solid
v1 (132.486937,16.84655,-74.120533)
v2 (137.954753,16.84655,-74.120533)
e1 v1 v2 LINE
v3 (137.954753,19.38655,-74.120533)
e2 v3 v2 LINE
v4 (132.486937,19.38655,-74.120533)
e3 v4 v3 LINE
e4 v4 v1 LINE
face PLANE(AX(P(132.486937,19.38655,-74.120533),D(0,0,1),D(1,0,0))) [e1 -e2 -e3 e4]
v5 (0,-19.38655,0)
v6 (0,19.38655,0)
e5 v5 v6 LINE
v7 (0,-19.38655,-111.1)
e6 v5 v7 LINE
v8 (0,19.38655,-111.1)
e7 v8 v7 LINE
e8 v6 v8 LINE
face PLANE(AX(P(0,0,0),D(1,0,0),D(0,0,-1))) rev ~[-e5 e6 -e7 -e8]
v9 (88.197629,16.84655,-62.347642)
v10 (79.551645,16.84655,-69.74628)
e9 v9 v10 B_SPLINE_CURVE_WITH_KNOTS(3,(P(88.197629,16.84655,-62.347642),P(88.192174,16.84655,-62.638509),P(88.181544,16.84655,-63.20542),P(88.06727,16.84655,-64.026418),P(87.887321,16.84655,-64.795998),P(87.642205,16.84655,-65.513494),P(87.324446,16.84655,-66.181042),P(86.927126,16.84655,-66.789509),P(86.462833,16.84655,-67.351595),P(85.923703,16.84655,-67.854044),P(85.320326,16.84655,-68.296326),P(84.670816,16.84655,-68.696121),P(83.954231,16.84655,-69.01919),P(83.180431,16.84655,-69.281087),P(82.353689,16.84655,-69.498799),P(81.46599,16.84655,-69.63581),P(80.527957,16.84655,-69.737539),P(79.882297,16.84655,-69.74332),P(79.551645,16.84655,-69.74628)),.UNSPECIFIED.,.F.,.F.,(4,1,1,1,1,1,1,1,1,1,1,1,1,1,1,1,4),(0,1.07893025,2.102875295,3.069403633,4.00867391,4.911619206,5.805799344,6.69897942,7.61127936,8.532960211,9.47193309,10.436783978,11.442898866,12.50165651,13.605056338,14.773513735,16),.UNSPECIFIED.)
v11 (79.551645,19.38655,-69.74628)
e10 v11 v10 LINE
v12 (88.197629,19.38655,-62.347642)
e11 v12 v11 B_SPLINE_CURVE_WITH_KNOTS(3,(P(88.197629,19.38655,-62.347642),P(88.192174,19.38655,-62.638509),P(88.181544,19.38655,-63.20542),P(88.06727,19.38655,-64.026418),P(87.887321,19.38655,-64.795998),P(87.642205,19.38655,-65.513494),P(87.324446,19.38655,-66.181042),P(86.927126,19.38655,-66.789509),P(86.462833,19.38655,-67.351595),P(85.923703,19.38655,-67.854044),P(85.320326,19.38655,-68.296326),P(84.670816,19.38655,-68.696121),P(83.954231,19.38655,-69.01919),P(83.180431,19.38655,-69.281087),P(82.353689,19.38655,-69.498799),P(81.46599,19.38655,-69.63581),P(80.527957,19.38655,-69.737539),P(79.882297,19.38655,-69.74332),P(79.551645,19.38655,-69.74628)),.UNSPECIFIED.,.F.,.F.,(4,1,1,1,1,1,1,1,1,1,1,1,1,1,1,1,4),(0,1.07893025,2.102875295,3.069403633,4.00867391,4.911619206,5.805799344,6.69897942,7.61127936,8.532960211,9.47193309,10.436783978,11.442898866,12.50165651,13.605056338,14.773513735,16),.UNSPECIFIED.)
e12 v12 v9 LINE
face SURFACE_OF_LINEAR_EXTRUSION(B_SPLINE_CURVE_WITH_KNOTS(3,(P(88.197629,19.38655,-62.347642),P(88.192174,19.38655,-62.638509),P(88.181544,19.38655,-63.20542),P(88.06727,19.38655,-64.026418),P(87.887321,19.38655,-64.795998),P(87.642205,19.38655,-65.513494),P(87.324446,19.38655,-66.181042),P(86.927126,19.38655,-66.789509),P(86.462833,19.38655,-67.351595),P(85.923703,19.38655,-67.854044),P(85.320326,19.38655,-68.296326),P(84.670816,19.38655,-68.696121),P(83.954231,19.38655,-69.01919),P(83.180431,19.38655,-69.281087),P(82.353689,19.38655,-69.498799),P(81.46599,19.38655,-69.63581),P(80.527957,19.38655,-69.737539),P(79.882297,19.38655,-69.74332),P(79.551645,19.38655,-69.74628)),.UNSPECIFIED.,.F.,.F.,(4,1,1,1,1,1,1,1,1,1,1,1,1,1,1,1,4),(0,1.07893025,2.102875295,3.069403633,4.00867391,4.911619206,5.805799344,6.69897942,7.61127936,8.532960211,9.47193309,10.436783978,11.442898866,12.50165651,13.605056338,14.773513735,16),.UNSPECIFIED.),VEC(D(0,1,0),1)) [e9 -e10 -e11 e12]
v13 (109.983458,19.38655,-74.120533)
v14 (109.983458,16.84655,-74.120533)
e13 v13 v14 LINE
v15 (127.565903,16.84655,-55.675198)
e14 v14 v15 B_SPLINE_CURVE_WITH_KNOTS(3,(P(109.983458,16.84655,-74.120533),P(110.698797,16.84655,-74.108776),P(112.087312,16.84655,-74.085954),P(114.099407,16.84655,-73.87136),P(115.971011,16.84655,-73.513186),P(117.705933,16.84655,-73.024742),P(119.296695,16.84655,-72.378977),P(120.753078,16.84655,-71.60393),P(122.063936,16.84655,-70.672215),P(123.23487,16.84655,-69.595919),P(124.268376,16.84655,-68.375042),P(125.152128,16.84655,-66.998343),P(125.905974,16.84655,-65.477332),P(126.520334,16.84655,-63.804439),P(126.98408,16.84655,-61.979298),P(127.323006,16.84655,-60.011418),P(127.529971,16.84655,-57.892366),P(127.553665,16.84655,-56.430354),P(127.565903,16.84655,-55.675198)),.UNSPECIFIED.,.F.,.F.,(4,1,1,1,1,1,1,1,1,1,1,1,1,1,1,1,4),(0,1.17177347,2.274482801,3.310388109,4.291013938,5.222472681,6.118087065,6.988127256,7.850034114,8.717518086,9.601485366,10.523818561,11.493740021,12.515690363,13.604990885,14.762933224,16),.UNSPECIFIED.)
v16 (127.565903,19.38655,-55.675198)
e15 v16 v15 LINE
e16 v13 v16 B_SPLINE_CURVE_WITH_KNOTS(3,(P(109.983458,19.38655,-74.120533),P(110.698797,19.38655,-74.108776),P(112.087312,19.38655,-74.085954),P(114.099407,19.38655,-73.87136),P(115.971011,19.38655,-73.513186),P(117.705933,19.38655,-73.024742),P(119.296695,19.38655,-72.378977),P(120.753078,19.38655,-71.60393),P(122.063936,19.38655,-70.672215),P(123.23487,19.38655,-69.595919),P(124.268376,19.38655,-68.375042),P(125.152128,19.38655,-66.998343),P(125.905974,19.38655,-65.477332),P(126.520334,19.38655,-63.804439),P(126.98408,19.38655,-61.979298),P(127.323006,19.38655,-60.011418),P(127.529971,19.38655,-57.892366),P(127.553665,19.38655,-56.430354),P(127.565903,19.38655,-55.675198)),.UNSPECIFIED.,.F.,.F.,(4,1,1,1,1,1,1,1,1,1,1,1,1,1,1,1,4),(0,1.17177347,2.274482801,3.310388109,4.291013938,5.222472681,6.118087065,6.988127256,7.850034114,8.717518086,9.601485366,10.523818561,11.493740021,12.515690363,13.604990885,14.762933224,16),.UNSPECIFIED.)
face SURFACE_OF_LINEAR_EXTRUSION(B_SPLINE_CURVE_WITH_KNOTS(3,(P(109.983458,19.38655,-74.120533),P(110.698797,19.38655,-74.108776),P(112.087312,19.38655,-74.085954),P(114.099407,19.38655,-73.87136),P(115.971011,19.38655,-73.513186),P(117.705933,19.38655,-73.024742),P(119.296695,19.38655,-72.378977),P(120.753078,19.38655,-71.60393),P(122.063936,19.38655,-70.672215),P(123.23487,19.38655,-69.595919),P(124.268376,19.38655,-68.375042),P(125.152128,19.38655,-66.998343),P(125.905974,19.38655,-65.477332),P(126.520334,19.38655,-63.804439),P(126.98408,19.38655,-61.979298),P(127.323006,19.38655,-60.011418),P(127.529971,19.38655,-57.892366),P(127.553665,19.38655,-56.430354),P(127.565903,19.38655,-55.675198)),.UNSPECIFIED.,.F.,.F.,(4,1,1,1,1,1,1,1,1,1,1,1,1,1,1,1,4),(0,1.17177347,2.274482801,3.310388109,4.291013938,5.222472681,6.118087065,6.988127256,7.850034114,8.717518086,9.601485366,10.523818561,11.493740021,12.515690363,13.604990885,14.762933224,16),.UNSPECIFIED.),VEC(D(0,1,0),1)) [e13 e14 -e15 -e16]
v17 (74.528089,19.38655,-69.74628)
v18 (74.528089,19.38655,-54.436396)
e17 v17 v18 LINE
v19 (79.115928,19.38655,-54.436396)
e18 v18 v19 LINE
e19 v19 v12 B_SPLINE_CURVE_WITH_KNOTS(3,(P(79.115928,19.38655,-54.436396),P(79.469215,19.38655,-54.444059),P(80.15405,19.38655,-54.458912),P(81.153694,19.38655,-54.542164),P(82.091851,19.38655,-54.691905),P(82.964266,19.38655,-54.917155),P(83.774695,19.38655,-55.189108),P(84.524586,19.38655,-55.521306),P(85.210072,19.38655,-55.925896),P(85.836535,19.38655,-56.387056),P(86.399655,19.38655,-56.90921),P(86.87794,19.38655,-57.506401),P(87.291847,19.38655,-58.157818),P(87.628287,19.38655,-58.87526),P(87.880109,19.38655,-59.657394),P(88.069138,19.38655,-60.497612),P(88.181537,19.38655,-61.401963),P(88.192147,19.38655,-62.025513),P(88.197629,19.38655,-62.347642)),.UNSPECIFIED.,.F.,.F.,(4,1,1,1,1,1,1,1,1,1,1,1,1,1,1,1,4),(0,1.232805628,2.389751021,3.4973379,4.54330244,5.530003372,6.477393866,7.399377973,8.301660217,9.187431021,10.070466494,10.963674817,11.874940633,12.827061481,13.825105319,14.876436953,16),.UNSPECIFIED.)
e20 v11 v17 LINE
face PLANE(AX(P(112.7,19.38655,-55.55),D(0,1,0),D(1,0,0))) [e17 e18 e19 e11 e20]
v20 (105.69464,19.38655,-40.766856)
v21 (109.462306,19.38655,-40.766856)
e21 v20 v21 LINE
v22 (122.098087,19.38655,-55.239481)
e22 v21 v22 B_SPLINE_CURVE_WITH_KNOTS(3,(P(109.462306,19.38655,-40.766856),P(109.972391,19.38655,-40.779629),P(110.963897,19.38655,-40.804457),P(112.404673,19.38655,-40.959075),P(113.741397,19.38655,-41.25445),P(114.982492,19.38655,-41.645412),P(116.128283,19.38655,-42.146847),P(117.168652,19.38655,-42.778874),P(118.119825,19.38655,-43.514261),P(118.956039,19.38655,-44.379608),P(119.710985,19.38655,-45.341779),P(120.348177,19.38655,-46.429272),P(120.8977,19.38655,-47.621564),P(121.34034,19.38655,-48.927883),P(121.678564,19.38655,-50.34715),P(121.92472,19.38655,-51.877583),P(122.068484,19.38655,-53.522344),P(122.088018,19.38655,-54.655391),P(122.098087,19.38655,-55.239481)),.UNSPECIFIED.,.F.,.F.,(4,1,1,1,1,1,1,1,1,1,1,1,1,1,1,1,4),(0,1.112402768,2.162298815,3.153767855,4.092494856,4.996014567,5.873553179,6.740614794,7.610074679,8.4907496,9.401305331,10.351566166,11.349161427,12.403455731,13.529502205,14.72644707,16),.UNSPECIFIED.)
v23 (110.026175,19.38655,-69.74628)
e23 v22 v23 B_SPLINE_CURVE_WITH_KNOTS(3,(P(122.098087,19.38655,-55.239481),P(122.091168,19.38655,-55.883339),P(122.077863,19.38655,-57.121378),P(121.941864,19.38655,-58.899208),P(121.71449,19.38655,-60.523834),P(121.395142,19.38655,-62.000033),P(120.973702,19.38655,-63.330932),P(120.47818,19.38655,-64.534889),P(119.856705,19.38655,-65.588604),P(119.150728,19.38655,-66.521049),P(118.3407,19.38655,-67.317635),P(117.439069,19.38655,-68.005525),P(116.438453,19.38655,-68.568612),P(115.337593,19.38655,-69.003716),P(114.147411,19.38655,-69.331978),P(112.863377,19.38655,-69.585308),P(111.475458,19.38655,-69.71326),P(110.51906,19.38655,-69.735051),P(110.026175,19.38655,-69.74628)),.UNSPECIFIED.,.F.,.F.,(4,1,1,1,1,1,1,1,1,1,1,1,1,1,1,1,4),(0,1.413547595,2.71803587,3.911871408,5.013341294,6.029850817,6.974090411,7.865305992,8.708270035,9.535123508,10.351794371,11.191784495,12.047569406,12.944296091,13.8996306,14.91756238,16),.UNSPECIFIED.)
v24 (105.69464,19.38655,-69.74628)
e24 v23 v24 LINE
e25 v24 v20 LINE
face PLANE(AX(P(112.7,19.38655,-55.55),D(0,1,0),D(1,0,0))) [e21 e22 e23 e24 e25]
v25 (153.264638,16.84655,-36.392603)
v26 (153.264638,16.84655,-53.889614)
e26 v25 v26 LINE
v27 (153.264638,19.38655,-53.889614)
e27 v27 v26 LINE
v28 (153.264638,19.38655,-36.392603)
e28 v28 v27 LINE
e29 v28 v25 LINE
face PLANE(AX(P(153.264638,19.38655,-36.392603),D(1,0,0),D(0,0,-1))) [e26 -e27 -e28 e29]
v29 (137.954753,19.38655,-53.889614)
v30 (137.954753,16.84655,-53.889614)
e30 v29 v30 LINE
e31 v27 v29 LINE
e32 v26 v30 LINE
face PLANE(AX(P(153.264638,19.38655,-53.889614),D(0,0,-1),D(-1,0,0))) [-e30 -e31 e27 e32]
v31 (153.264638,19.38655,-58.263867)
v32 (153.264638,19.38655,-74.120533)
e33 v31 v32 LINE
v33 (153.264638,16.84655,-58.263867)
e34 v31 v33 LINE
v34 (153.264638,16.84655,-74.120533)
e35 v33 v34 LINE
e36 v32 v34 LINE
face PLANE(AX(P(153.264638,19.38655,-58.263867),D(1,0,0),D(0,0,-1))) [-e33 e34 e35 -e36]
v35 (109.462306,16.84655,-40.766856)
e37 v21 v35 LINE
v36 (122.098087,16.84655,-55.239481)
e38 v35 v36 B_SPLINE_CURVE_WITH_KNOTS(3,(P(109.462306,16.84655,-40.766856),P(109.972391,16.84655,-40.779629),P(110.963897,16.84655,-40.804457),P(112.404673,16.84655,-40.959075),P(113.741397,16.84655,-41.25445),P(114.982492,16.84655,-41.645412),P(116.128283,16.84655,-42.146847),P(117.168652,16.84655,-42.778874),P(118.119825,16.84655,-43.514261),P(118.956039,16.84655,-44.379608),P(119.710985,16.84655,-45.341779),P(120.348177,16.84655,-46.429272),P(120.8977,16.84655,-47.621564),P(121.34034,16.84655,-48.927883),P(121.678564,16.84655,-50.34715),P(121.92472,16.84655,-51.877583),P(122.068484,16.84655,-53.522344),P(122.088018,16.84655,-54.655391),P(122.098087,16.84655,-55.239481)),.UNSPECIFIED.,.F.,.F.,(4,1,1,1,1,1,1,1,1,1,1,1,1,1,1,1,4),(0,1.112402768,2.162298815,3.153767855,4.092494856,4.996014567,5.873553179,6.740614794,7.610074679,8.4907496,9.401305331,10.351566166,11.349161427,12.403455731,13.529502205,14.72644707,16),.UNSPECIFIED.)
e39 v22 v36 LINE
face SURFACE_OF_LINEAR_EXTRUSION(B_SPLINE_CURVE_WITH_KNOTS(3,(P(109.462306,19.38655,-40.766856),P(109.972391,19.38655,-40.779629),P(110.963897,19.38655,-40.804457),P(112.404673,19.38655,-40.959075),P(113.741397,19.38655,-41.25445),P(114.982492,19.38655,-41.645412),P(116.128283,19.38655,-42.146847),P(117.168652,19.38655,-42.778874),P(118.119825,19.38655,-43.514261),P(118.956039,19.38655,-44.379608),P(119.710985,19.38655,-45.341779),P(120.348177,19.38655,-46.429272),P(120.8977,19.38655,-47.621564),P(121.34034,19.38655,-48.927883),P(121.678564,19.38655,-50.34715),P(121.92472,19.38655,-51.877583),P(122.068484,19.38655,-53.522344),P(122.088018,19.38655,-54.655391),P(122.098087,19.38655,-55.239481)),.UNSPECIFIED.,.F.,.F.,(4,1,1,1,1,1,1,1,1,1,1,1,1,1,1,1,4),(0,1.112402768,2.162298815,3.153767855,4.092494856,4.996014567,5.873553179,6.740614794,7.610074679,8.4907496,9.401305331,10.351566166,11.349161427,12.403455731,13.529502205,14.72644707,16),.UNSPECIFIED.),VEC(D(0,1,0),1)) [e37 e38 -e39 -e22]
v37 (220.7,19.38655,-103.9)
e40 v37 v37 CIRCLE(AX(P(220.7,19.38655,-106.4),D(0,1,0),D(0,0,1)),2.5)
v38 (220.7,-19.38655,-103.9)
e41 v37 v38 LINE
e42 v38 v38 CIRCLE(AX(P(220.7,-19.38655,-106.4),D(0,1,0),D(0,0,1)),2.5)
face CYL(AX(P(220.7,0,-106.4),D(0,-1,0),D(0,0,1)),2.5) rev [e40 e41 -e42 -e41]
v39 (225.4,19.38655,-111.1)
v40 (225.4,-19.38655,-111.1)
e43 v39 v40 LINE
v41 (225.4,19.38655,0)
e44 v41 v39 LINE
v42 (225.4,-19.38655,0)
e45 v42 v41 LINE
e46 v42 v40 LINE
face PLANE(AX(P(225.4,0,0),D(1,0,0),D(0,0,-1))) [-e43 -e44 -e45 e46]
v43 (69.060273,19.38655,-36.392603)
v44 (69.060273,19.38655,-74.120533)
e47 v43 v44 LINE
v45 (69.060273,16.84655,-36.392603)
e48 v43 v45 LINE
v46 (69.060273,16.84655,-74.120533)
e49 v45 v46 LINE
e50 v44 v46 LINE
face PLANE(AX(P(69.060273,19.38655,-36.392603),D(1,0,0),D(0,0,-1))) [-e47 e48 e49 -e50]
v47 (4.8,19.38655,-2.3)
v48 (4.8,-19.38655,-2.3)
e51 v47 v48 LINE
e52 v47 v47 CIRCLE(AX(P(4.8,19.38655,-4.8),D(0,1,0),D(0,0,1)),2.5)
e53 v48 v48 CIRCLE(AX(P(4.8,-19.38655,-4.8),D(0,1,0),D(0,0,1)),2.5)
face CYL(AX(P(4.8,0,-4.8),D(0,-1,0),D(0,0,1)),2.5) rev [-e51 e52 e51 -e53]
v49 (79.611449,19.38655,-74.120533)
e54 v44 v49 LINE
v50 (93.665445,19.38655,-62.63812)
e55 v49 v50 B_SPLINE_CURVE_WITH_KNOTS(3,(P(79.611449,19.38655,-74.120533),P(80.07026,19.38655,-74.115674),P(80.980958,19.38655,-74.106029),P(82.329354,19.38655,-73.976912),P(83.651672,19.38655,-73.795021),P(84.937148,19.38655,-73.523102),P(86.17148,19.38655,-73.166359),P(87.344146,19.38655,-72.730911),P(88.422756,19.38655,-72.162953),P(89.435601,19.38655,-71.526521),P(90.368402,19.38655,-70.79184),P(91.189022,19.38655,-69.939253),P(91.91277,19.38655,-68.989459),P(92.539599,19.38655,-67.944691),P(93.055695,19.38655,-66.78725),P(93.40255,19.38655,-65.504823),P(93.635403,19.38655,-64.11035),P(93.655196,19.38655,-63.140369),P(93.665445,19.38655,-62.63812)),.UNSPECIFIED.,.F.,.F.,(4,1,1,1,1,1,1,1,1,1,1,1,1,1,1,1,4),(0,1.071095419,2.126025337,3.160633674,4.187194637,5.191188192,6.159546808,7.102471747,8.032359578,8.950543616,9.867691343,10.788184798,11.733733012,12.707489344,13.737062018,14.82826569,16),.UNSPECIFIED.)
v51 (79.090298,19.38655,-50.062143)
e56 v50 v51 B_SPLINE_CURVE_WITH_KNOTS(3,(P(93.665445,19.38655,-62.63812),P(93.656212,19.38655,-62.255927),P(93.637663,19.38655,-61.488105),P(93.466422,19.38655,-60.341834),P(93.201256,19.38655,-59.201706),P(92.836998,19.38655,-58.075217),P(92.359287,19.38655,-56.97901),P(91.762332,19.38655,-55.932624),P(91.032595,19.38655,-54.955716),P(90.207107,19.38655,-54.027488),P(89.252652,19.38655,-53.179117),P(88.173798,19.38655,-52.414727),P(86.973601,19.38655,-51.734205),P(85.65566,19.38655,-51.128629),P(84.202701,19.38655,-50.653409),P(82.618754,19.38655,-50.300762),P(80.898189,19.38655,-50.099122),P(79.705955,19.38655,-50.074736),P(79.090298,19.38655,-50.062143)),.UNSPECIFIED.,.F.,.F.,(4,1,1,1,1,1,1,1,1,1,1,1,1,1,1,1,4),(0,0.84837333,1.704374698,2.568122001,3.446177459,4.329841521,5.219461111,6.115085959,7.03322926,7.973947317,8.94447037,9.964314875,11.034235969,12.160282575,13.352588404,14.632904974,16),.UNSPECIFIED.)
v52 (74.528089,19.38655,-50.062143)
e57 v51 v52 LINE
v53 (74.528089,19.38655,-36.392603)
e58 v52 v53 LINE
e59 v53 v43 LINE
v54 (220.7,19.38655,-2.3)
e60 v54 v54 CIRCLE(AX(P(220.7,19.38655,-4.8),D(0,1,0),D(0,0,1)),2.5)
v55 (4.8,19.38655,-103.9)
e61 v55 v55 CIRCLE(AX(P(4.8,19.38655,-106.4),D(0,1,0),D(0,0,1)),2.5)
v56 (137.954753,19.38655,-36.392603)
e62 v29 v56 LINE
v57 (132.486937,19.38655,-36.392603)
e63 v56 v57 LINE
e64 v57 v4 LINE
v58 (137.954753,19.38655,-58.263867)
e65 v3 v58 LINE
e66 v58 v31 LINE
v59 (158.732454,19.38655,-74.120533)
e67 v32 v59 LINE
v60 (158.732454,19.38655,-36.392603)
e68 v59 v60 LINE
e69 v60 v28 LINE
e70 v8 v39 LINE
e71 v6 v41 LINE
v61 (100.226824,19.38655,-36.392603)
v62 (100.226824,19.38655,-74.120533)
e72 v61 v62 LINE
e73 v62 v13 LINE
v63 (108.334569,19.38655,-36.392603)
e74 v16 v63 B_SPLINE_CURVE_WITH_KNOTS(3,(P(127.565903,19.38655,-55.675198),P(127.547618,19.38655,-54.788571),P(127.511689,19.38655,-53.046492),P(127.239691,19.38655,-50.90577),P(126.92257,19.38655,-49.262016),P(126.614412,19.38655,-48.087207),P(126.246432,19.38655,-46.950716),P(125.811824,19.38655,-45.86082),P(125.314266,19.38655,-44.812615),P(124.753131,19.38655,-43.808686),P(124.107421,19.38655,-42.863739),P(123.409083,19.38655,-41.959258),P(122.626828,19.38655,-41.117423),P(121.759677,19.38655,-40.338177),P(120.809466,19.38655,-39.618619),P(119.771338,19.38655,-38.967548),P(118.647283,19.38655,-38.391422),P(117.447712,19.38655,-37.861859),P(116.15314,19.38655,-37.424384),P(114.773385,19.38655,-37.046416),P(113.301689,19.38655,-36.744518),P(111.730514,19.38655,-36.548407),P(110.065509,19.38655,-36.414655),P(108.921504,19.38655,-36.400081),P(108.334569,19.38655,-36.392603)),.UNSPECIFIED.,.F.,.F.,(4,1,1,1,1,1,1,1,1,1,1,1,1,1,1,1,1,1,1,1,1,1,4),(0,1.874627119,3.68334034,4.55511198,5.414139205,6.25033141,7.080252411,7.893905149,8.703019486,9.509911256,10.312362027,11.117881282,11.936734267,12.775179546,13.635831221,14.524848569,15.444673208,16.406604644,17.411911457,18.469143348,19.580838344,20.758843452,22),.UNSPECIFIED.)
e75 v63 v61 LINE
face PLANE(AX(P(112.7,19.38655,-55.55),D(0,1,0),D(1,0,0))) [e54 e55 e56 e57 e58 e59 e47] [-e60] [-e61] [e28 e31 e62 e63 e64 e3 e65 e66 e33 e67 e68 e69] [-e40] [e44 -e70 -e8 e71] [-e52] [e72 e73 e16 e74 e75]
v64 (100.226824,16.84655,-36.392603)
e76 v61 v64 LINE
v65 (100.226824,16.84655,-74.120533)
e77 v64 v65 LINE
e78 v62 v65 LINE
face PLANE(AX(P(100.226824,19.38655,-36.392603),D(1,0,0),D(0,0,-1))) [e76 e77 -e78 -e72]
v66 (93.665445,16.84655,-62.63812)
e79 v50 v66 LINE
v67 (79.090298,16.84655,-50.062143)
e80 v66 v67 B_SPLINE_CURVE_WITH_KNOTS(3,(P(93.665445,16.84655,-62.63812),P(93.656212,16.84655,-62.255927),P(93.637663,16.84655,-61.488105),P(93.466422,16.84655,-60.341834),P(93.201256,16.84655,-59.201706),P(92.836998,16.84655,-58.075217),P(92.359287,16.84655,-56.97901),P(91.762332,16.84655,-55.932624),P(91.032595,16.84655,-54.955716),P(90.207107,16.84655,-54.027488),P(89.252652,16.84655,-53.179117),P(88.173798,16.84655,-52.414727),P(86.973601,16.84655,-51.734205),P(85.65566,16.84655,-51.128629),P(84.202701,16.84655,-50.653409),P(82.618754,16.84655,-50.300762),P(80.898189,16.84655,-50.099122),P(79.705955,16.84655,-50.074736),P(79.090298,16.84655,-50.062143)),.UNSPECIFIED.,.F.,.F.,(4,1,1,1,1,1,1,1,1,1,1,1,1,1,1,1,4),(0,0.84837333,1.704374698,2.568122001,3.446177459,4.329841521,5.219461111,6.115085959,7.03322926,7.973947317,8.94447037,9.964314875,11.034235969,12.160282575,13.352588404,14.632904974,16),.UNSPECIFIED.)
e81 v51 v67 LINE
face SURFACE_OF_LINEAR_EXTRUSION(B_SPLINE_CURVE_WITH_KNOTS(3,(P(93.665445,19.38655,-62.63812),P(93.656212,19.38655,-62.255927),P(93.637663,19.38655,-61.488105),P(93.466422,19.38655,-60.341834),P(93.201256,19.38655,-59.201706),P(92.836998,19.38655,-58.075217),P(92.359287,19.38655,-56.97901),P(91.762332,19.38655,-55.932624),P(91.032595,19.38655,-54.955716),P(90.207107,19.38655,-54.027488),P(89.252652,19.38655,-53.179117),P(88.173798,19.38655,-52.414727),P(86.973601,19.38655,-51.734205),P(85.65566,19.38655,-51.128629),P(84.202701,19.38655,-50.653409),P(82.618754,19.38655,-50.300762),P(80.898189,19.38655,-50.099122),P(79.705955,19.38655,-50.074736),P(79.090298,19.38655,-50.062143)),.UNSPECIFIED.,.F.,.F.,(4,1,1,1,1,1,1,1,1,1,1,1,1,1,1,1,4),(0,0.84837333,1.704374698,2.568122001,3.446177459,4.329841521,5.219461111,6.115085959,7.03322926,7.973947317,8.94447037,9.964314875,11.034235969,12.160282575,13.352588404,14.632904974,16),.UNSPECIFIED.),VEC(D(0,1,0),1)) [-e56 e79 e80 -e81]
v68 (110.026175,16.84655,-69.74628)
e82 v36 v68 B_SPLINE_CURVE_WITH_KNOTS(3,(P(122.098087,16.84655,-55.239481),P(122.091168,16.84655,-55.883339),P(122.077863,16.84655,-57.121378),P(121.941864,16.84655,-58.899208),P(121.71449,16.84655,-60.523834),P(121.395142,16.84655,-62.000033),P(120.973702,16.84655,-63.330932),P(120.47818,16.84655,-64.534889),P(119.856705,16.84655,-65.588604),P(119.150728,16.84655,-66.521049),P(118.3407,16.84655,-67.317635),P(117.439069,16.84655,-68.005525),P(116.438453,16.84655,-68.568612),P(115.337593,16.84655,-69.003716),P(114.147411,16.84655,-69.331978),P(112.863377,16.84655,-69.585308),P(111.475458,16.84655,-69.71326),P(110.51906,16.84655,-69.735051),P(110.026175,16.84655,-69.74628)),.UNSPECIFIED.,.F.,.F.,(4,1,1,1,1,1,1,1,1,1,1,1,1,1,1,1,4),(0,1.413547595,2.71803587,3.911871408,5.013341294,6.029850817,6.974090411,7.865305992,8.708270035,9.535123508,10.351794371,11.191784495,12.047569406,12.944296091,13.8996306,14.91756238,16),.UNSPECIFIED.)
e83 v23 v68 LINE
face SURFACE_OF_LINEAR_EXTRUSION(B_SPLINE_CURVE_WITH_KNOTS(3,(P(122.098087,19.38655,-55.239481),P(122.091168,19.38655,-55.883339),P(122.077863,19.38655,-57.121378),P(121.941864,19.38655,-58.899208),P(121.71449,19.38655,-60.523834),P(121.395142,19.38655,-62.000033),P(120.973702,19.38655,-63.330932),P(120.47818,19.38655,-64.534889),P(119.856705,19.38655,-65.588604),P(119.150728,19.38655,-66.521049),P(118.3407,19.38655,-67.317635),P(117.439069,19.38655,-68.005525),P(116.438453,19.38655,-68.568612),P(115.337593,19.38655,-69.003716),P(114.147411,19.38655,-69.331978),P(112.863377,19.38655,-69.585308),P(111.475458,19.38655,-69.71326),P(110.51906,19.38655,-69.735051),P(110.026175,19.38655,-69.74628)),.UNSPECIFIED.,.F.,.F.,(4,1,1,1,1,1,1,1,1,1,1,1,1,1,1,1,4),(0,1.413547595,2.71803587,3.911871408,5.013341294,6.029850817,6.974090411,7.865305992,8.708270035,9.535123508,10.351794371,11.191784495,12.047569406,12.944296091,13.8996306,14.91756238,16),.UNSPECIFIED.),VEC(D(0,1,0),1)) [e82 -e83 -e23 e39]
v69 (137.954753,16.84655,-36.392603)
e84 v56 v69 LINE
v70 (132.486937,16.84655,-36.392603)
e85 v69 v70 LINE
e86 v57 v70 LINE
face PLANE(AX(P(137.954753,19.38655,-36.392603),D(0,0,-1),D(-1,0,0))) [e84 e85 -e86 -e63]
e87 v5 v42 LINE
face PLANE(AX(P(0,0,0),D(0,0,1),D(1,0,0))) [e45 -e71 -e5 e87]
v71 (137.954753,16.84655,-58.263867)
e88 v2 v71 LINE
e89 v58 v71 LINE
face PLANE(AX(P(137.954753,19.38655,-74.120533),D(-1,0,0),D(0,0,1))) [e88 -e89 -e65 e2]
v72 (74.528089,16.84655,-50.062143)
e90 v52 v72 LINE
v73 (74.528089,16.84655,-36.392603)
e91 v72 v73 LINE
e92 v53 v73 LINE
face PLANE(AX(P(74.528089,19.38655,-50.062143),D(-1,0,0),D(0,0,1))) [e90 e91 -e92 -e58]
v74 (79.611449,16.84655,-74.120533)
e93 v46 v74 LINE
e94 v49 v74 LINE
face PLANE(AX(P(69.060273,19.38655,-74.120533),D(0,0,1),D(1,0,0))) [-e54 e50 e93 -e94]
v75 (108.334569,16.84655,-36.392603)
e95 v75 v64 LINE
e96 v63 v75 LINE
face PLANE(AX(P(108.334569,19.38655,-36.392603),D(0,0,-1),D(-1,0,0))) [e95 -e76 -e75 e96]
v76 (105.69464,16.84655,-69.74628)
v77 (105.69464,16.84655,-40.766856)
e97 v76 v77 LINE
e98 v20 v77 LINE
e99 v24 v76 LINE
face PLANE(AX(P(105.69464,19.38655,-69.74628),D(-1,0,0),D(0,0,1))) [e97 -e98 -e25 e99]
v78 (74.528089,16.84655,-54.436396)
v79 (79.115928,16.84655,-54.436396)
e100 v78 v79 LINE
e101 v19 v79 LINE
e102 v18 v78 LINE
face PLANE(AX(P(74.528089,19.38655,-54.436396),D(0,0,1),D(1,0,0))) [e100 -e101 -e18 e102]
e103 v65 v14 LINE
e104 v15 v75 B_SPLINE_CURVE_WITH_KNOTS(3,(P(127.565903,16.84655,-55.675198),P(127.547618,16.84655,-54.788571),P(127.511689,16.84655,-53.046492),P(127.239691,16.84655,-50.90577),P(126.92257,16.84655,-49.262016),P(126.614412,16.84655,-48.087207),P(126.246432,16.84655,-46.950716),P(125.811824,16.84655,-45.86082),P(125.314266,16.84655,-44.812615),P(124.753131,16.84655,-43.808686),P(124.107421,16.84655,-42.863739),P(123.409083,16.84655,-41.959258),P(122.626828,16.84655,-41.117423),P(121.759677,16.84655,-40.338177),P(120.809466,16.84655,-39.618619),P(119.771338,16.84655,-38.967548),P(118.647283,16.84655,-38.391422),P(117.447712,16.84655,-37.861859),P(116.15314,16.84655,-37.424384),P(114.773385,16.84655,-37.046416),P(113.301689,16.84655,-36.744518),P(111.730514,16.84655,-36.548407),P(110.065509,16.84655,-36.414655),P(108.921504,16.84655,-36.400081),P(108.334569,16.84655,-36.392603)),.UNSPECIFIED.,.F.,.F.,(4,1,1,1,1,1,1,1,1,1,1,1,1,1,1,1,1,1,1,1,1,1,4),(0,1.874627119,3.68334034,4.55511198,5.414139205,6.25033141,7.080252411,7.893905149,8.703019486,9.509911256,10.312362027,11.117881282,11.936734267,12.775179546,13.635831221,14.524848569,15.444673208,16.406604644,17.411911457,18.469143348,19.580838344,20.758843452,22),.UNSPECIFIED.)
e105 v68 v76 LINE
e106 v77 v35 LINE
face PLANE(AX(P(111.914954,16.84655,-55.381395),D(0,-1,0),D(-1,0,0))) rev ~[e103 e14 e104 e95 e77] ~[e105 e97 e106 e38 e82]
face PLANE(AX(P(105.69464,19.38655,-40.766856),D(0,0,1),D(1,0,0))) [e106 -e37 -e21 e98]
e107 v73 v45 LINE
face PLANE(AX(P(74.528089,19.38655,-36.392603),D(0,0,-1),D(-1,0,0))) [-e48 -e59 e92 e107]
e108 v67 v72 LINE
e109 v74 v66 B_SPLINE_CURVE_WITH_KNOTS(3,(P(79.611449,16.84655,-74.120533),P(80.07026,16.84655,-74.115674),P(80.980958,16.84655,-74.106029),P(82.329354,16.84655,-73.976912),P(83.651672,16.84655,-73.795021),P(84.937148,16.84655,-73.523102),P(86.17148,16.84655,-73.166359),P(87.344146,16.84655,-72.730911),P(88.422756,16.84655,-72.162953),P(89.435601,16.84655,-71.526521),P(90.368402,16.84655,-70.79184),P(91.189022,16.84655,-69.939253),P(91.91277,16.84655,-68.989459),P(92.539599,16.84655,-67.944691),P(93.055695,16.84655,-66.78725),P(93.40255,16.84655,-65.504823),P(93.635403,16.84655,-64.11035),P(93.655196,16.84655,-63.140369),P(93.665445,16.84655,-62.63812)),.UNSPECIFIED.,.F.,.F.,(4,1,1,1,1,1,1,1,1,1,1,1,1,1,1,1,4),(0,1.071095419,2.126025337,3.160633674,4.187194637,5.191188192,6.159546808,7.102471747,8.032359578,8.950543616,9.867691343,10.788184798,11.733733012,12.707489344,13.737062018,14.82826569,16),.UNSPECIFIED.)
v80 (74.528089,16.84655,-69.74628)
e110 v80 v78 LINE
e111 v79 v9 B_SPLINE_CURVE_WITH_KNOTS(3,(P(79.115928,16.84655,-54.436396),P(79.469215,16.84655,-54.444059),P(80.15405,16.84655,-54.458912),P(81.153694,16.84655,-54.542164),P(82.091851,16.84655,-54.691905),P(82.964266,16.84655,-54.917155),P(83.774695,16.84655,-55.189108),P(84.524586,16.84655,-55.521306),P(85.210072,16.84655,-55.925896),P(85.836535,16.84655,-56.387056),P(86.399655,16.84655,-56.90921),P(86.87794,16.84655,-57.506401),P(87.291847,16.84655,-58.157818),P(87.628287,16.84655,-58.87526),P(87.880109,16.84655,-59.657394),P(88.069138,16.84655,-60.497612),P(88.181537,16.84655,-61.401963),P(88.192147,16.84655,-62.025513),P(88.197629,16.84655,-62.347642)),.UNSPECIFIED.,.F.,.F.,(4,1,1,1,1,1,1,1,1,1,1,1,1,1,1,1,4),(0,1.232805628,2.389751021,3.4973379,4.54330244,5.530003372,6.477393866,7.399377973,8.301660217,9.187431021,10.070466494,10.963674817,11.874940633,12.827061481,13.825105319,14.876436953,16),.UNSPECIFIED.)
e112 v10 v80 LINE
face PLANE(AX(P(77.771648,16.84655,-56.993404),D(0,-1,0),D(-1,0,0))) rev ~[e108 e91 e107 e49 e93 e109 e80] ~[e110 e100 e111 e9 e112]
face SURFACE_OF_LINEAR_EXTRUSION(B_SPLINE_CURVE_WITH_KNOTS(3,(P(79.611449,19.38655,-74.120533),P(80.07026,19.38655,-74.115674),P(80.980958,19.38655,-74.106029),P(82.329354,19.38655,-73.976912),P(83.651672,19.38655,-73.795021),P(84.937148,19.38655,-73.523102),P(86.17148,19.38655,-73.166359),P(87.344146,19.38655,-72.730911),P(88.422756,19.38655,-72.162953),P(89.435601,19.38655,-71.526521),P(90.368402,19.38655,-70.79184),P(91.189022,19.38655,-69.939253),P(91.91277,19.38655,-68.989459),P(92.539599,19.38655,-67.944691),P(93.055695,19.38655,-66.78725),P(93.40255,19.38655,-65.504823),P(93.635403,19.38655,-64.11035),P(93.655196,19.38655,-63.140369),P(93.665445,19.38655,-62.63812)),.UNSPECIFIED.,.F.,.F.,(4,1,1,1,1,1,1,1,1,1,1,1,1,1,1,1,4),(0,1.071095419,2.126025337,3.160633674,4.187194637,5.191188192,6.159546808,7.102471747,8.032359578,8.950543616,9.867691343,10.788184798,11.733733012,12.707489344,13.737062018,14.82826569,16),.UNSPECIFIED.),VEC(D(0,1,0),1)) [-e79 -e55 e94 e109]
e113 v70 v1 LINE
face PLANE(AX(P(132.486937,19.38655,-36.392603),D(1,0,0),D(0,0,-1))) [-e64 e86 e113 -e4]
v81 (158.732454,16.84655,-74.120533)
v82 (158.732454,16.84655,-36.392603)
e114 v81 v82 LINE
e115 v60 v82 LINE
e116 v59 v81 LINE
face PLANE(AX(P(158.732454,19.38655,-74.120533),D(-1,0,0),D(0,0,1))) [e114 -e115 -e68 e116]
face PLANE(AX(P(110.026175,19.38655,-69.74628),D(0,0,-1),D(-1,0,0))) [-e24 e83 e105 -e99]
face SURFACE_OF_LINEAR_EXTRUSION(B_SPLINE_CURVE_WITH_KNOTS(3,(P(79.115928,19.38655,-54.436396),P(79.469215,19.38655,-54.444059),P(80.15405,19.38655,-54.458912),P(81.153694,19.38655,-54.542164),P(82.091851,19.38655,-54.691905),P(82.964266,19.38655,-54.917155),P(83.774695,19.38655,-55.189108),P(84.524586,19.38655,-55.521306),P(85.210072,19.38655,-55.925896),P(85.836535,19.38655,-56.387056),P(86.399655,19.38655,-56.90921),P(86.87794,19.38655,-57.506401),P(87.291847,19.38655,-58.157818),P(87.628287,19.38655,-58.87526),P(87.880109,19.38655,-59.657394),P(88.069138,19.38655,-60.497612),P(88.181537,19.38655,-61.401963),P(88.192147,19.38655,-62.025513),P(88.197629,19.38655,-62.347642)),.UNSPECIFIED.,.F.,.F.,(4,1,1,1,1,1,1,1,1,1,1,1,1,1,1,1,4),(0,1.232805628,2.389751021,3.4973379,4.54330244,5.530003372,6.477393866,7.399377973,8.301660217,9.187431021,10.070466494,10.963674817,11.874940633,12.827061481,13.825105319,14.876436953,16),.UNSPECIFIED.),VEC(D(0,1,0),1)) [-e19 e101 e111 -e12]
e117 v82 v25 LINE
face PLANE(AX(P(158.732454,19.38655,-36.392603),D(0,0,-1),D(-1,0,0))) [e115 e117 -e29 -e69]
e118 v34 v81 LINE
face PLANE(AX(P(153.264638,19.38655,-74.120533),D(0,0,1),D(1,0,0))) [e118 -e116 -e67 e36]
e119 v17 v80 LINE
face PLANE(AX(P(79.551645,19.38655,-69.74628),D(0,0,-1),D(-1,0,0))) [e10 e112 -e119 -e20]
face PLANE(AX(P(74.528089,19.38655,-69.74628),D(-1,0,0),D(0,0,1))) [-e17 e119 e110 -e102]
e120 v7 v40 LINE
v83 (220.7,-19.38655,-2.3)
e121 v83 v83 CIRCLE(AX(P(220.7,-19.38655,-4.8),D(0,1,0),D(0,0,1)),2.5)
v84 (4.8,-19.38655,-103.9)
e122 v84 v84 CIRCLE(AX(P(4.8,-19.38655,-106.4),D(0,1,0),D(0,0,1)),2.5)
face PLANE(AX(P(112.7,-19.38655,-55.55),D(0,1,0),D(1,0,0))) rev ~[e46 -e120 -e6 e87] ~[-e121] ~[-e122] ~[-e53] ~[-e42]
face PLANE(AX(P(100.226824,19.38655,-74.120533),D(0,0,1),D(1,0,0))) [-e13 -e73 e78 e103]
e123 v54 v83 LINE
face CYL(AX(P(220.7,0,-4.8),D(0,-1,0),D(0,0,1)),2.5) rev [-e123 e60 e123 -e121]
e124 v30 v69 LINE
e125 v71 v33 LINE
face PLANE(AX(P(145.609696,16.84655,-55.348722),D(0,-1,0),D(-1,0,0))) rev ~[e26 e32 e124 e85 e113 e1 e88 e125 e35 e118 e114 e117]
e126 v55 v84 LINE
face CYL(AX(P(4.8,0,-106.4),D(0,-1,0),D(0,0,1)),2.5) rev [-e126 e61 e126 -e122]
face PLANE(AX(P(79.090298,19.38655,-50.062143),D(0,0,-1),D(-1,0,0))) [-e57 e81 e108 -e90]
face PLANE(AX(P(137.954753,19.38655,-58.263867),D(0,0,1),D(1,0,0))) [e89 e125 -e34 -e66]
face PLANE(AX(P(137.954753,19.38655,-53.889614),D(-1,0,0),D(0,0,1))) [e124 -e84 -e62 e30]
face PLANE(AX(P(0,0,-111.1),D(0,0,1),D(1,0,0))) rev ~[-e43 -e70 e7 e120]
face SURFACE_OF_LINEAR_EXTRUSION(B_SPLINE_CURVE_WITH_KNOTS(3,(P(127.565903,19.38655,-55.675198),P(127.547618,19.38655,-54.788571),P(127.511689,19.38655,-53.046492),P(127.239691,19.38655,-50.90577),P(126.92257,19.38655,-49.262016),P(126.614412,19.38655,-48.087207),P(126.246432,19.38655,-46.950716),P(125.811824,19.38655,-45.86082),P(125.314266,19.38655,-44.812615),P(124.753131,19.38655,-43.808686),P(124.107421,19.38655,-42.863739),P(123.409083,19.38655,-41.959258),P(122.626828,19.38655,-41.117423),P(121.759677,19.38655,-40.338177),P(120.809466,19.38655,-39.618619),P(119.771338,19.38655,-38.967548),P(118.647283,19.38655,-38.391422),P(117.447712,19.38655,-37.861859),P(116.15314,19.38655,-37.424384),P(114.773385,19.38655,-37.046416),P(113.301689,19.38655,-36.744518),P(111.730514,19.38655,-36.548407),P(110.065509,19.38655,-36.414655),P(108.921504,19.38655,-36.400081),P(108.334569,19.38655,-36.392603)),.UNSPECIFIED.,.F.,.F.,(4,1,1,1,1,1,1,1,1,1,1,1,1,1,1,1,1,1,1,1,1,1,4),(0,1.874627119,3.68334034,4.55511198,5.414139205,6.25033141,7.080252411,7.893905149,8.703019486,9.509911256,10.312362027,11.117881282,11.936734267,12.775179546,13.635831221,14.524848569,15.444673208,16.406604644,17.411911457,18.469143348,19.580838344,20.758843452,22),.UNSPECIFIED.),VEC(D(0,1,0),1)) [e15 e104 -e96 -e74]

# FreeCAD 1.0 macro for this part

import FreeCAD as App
import Part
import Sketcher

V = App.Vector

doc = App.newDocument("Part")
body = doc.addObject("PartDesign::Body", "Body")

sketch1 = body.newObject("Sketcher::SketchObject", "Sketch")
sketch1.AttachmentSupport = (doc.getObject("XZ_Plane"), [""])
sketch1.MapMode = "FlatFace"
sketch1.addGeometry(Part.LineSegment(V(0, -111.1, 0), V(0, 0, 0)), False)
sketch1.addGeometry(Part.LineSegment(V(0, 0, 0), V(225.4, 0, 0)), False)
sketch1.addGeometry(Part.LineSegment(V(225.4, 0, 0), V(225.4, -111.1, 0)), False)
sketch1.addGeometry(Part.LineSegment(V(225.4, -111.1, 0), V(0, -111.1, 0)), False)
sketch1.addGeometry(Part.Circle(V(4.8, -4.8, 0), V(0, 0, 1), 2.5), False)
sketch1.addGeometry(Part.Circle(V(220.7, -4.8, 0), V(0, 0, 1), 2.5), False)
sketch1.addGeometry(Part.Circle(V(4.8, -106.4, 0), V(0, 0, 1), 2.5), False)
sketch1.addGeometry(Part.Circle(V(220.7, -106.4, 0), V(0, 0, 1), 2.5), False)
sketch1.addConstraint(Sketcher.Constraint("Coincident", 0, 2, 1, 1))
sketch1.addConstraint(Sketcher.Constraint("Coincident", 1, 2, 2, 1))
sketch1.addConstraint(Sketcher.Constraint("Coincident", 2, 2, 3, 1))
sketch1.addConstraint(Sketcher.Constraint("Coincident", 3, 2, 0, 1))
sketch1.addConstraint(Sketcher.Constraint("Vertical", 0))
sketch1.addConstraint(Sketcher.Constraint("Horizontal", 1))
sketch1.addConstraint(Sketcher.Constraint("Vertical", 2))
sketch1.addConstraint(Sketcher.Constraint("Horizontal", 3))
sketch1.addConstraint(Sketcher.Constraint("Coincident", 0, 2, -1, 1))
sketch1.addConstraint(Sketcher.Constraint("Equal", 4, 5))
sketch1.addConstraint(Sketcher.Constraint("Equal", 5, 6))
sketch1.addConstraint(Sketcher.Constraint("Equal", 6, 7))
sketch1.addConstraint(Sketcher.Constraint("Horizontal", 4, 3, 5, 3))
sketch1.addConstraint(Sketcher.Constraint("Horizontal", 6, 3, 7, 3))
sketch1.addConstraint(Sketcher.Constraint("Vertical", 4, 3, 6, 3))
sketch1.addConstraint(Sketcher.Constraint("Vertical", 5, 3, 7, 3))
sketch1.addConstraint(Sketcher.Constraint("Diameter", 4, 5.0))
sketch1.addConstraint(Sketcher.Constraint("DistanceX", 1, 1, 1, 2, 225.4))
sketch1.addConstraint(Sketcher.Constraint("DistanceY", 0, 1, 0, 2, 111.1))
sketch1.addConstraint(Sketcher.Constraint("DistanceX", -1, 1, 4, 3, 4.8))
sketch1.addConstraint(Sketcher.Constraint("DistanceY", 4, 3, -1, 1, 4.8))
sketch1.addConstraint(Sketcher.Constraint("DistanceX", -1, 1, 5, 3, 220.7))
sketch1.addConstraint(Sketcher.Constraint("DistanceY", 6, 3, -1, 1, 106.4))
pad1 = body.newObject("PartDesign::Pad", "Pad")
pad1.Profile = sketch1
pad1.Length = 38.7731
pad1.Midplane = True

sketch2 = body.newObject("Sketcher::SketchObject", "Sketch001")
sketch2.AttachmentSupport = (doc.getObject("XZ_Plane"), [""])
sketch2.MapMode = "FlatFace"
sketch2.AttachmentOffset = App.Placement(V(0, 0, -19.38655), App.Rotation())
sketch2.addGeometry(Part.BSplineCurve([V(93.665445, -62.63812, 0), V(93.656212, -62.255927, 0), V(93.637663, -61.488105, 0), V(93.466422, -60.341834, 0), V(93.201256, -59.201706, 0), V(92.836998, -58.075217, 0), V(92.359287, -56.97901, 0), V(91.762332, -55.932624, 0), V(91.032595, -54.955716, 0), V(90.207107, -54.027488, 0), V(89.252652, -53.179117, 0), V(88.173798, -52.414727, 0), V(86.973601, -51.734205, 0), V(85.65566, -51.128629, 0), V(84.202701, -50.653409, 0), V(82.618754, -50.300762, 0), V(80.898189, -50.099122, 0), V(79.705955, -50.074736, 0), V(79.090298, -50.062143, 0)], [4, 1, 1, 1, 1, 1, 1, 1, 1, 1, 1, 1, 1, 1, 1, 1, 4], [0, 0.84837333, 1.704374698, 2.568122001, 3.446177459, 4.329841521, 5.219461111, 6.115085959, 7.03322926, 7.973947317, 8.94447037, 9.964314875, 11.034235969, 12.160282575, 13.352588404, 14.632904974, 16], False, 3, [1, 1, 1, 1, 1, 1, 1, 1, 1, 1, 1, 1, 1, 1, 1, 1, 1, 1, 1], False), False)
sketch2.addGeometry(Part.BSplineCurve([V(79.611449, -74.120533, 0), V(80.07026, -74.115674, 0), V(80.980958, -74.106029, 0), V(82.329354, -73.976912, 0), V(83.651672, -73.795021, 0), V(84.937148, -73.523102, 0), V(86.17148, -73.166359, 0), V(87.344146, -72.730911, 0), V(88.422756, -72.162953, 0), V(89.435601, -71.526521, 0), V(90.368402, -70.79184, 0), V(91.189022, -69.939253, 0), V(91.91277, -68.989459, 0), V(92.539599, -67.944691, 0), V(93.055695, -66.78725, 0), V(93.40255, -65.504823, 0), V(93.635403, -64.11035, 0), V(93.655196, -63.140369, 0), V(93.665445, -62.63812, 0)], [4, 1, 1, 1, 1, 1, 1, 1, 1, 1, 1, 1, 1, 1, 1, 1, 4], [0, 1.071095419, 2.126025337, 3.160633674, 4.187194637, 5.191188192, 6.159546808, 7.102471747, 8.032359578, 8.950543616, 9.867691343, 10.788184798, 11.733733012, 12.707489344, 13.737062018, 14.82826569, 16], False, 3, [1, 1, 1, 1, 1, 1, 1, 1, 1, 1, 1, 1, 1, 1, 1, 1, 1, 1, 1], False), False)
sketch2.addGeometry(Part.LineSegment(V(79.611449, -74.120533, 0), V(69.060273, -74.120533, 0)), False)
sketch2.addGeometry(Part.LineSegment(V(69.060273, -74.120533, 0), V(69.060273, -36.392603, 0)), False)
sketch2.addGeometry(Part.LineSegment(V(69.060273, -36.392603, 0), V(74.528089, -36.392603, 0)), False)
sketch2.addGeometry(Part.LineSegment(V(74.528089, -36.392603, 0), V(74.528089, -50.062143, 0)), False)
sketch2.addGeometry(Part.LineSegment(V(74.528089, -50.062143, 0), V(79.090298, -50.062143, 0)), False)
sketch2.addGeometry(Part.BSplineCurve([V(79.115928, -54.436396, 0), V(79.469215, -54.444059, 0), V(80.15405, -54.458912, 0), V(81.153694, -54.542164, 0), V(82.091851, -54.691905, 0), V(82.964266, -54.917155, 0), V(83.774695, -55.189108, 0), V(84.524586, -55.521306, 0), V(85.210072, -55.925896, 0), V(85.836535, -56.387056, 0), V(86.399655, -56.90921, 0), V(86.87794, -57.506401, 0), V(87.291847, -58.157818, 0), V(87.628287, -58.87526, 0), V(87.880109, -59.657394, 0), V(88.069138, -60.497612, 0), V(88.181537, -61.401963, 0), V(88.192147, -62.025513, 0), V(88.197629, -62.347642, 0)], [4, 1, 1, 1, 1, 1, 1, 1, 1, 1, 1, 1, 1, 1, 1, 1, 4], [0, 1.232805628, 2.389751021, 3.4973379, 4.54330244, 5.530003372, 6.477393866, 7.399377973, 8.301660217, 9.187431021, 10.070466494, 10.963674817, 11.874940633, 12.827061481, 13.825105319, 14.876436953, 16], False, 3, [1, 1, 1, 1, 1, 1, 1, 1, 1, 1, 1, 1, 1, 1, 1, 1, 1, 1, 1], False), False)
sketch2.addGeometry(Part.LineSegment(V(79.115928, -54.436396, 0), V(74.528089, -54.436396, 0)), False)
sketch2.addGeometry(Part.LineSegment(V(74.528089, -54.436396, 0), V(74.528089, -69.74628, 0)), False)
sketch2.addGeometry(Part.LineSegment(V(74.528089, -69.74628, 0), V(79.551645, -69.74628, 0)), False)
sketch2.addGeometry(Part.BSplineCurve([V(88.197629, -62.347642, 0), V(88.192174, -62.638509, 0), V(88.181544, -63.20542, 0), V(88.06727, -64.026418, 0), V(87.887321, -64.795998, 0), V(87.642205, -65.513494, 0), V(87.324446, -66.181042, 0), V(86.927126, -66.789509, 0), V(86.462833, -67.351595, 0), V(85.923703, -67.854044, 0), V(85.320326, -68.296326, 0), V(84.670816, -68.696121, 0), V(83.954231, -69.01919, 0), V(83.180431, -69.281087, 0), V(82.353689, -69.498799, 0), V(81.46599, -69.63581, 0), V(80.527957, -69.737539, 0), V(79.882297, -69.74332, 0), V(79.551645, -69.74628, 0)], [4, 1, 1, 1, 1, 1, 1, 1, 1, 1, 1, 1, 1, 1, 1, 1, 4], [0, 1.07893025, 2.102875295, 3.069403633, 4.00867391, 4.911619206, 5.805799344, 6.69897942, 7.61127936, 8.532960211, 9.47193309, 10.436783978, 11.442898866, 12.50165651, 13.605056338, 14.773513735, 16], False, 3, [1, 1, 1, 1, 1, 1, 1, 1, 1, 1, 1, 1, 1, 1, 1, 1, 1, 1, 1], False), False)
sketch2.addGeometry(Part.BSplineCurve([V(127.565903, -55.675198, 0), V(127.547618, -54.788571, 0), V(127.511689, -53.046492, 0), V(127.239691, -50.90577, 0), V(126.92257, -49.262016, 0), V(126.614412, -48.087207, 0), V(126.246432, -46.950716, 0), V(125.811824, -45.86082, 0), V(125.314266, -44.812615, 0), V(124.753131, -43.808686, 0), V(124.107421, -42.863739, 0), V(123.409083, -41.959258, 0), V(122.626828, -41.117423, 0), V(121.759677, -40.338177, 0), V(120.809466, -39.618619, 0), V(119.771338, -38.967548, 0), V(118.647283, -38.391422, 0), V(117.447712, -37.861859, 0), V(116.15314, -37.424384, 0), V(114.773385, -37.046416, 0), V(113.301689, -36.744518, 0), V(111.730514, -36.548407, 0), V(110.065509, -36.414655, 0), V(108.921504, -36.400081, 0), V(108.334569, -36.392603, 0)], [4, 1, 1, 1, 1, 1, 1, 1, 1, 1, 1, 1, 1, 1, 1, 1, 1, 1, 1, 1, 1, 1, 4], [0, 1.874627119, 3.68334034, 4.55511198, 5.414139205, 6.25033141, 7.080252411, 7.893905149, 8.703019486, 9.509911256, 10.312362027, 11.117881282, 11.936734267, 12.775179546, 13.635831221, 14.524848569, 15.444673208, 16.406604644, 17.411911457, 18.469143348, 19.580838344, 20.758843452, 22], False, 3, [1, 1, 1, 1, 1, 1, 1, 1, 1, 1, 1, 1, 1, 1, 1, 1, 1, 1, 1, 1, 1, 1, 1, 1, 1], False), False)
sketch2.addGeometry(Part.BSplineCurve([V(109.983458, -74.120533, 0), V(110.698797, -74.108776, 0), V(112.087312, -74.085954, 0), V(114.099407, -73.87136, 0), V(115.971011, -73.513186, 0), V(117.705933, -73.024742, 0), V(119.296695, -72.378977, 0), V(120.753078, -71.60393, 0), V(122.063936, -70.672215, 0), V(123.23487, -69.595919, 0), V(124.268376, -68.375042, 0), V(125.152128, -66.998343, 0), V(125.905974, -65.477332, 0), V(126.520334, -63.804439, 0), V(126.98408, -61.979298, 0), V(127.323006, -60.011418, 0), V(127.529971, -57.892366, 0), V(127.553665, -56.430354, 0), V(127.565903, -55.675198, 0)], [4, 1, 1, 1, 1, 1, 1, 1, 1, 1, 1, 1, 1, 1, 1, 1, 4], [0, 1.17177347, 2.274482801, 3.310388109, 4.291013938, 5.222472681, 6.118087065, 6.988127256, 7.850034114, 8.717518086, 9.601485366, 10.523818561, 11.493740021, 12.515690363, 13.604990885, 14.762933224, 16], False, 3, [1, 1, 1, 1, 1, 1, 1, 1, 1, 1, 1, 1, 1, 1, 1, 1, 1, 1, 1], False), False)
sketch2.addGeometry(Part.LineSegment(V(109.983458, -74.120533, 0), V(100.226824, -74.120533, 0)), False)
sketch2.addGeometry(Part.LineSegment(V(100.226824, -74.120533, 0), V(100.226824, -36.392603, 0)), False)
sketch2.addGeometry(Part.LineSegment(V(100.226824, -36.392603, 0), V(108.334569, -36.392603, 0)), False)
sketch2.addGeometry(Part.BSplineCurve([V(109.462306, -40.766856, 0), V(109.972391, -40.779629, 0), V(110.963897, -40.804457, 0), V(112.404673, -40.959075, 0), V(113.741397, -41.25445, 0), V(114.982492, -41.645412, 0), V(116.128283, -42.146847, 0), V(117.168652, -42.778874, 0), V(118.119825, -43.514261, 0), V(118.956039, -44.379608, 0), V(119.710985, -45.341779, 0), V(120.348177, -46.429272, 0), V(120.8977, -47.621564, 0), V(121.34034, -48.927883, 0), V(121.678564, -50.34715, 0), V(121.92472, -51.877583, 0), V(122.068484, -53.522344, 0), V(122.088018, -54.655391, 0), V(122.098087, -55.239481, 0)], [4, 1, 1, 1, 1, 1, 1, 1, 1, 1, 1, 1, 1, 1, 1, 1, 4], [0, 1.112402768, 2.162298815, 3.153767855, 4.092494856, 4.996014567, 5.873553179, 6.740614794, 7.610074679, 8.4907496, 9.401305331, 10.351566166, 11.349161427, 12.403455731, 13.529502205, 14.72644707, 16], False, 3, [1, 1, 1, 1, 1, 1, 1, 1, 1, 1, 1, 1, 1, 1, 1, 1, 1, 1, 1], False), False)
sketch2.addGeometry(Part.LineSegment(V(109.462306, -40.766856, 0), V(105.69464, -40.766856, 0)), False)
sketch2.addGeometry(Part.LineSegment(V(105.69464, -40.766856, 0), V(105.69464, -69.74628, 0)), False)
sketch2.addGeometry(Part.LineSegment(V(105.69464, -69.74628, 0), V(110.026175, -69.74628, 0)), False)
sketch2.addGeometry(Part.BSplineCurve([V(122.098087, -55.239481, 0), V(122.091168, -55.883339, 0), V(122.077863, -57.121378, 0), V(121.941864, -58.899208, 0), V(121.71449, -60.523834, 0), V(121.395142, -62.000033, 0), V(120.973702, -63.330932, 0), V(120.47818, -64.534889, 0), V(119.856705, -65.588604, 0), V(119.150728, -66.521049, 0), V(118.3407, -67.317635, 0), V(117.439069, -68.005525, 0), V(116.438453, -68.568612, 0), V(115.337593, -69.003716, 0), V(114.147411, -69.331978, 0), V(112.863377, -69.585308, 0), V(111.475458, -69.71326, 0), V(110.51906, -69.735051, 0), V(110.026175, -69.74628, 0)], [4, 1, 1, 1, 1, 1, 1, 1, 1, 1, 1, 1, 1, 1, 1, 1, 4], [0, 1.413547595, 2.71803587, 3.911871408, 5.013341294, 6.029850817, 6.974090411, 7.865305992, 8.708270035, 9.535123508, 10.351794371, 11.191784495, 12.047569406, 12.944296091, 13.8996306, 14.91756238, 16], False, 3, [1, 1, 1, 1, 1, 1, 1, 1, 1, 1, 1, 1, 1, 1, 1, 1, 1, 1, 1], False), False)
sketch2.addGeometry(Part.LineSegment(V(153.264638, -36.392603, 0), V(158.732454, -36.392603, 0)), False)
sketch2.addGeometry(Part.LineSegment(V(158.732454, -36.392603, 0), V(158.732454, -74.120533, 0)), False)
sketch2.addGeometry(Part.LineSegment(V(158.732454, -74.120533, 0), V(153.264638, -74.120533, 0)), False)
sketch2.addGeometry(Part.LineSegment(V(153.264638, -74.120533, 0), V(153.264638, -58.263867, 0)), False)
sketch2.addGeometry(Part.LineSegment(V(153.264638, -58.263867, 0), V(137.954753, -58.263867, 0)), False)
sketch2.addGeometry(Part.LineSegment(V(137.954753, -58.263867, 0), V(137.954753, -74.120533, 0)), False)
sketch2.addGeometry(Part.LineSegment(V(137.954753, -74.120533, 0), V(132.486937, -74.120533, 0)), False)
sketch2.addGeometry(Part.LineSegment(V(132.486937, -74.120533, 0), V(132.486937, -36.392603, 0)), False)
sketch2.addGeometry(Part.LineSegment(V(132.486937, -36.392603, 0), V(137.954753, -36.392603, 0)), False)
sketch2.addGeometry(Part.LineSegment(V(137.954753, -36.392603, 0), V(137.954753, -53.889614, 0)), False)
sketch2.addGeometry(Part.LineSegment(V(137.954753, -53.889614, 0), V(153.264638, -53.889614, 0)), False)
sketch2.addGeometry(Part.LineSegment(V(153.264638, -53.889614, 0), V(153.264638, -36.392603, 0)), False)
sketch2.addConstraint(Sketcher.Constraint("Block", 0))
sketch2.addConstraint(Sketcher.Constraint("Block", 1))
sketch2.addConstraint(Sketcher.Constraint("Block", 7))
sketch2.addConstraint(Sketcher.Constraint("Block", 11))
sketch2.addConstraint(Sketcher.Constraint("Block", 12))
sketch2.addConstraint(Sketcher.Constraint("Block", 13))
sketch2.addConstraint(Sketcher.Constraint("Block", 17))
sketch2.addConstraint(Sketcher.Constraint("Block", 21))
sketch2.addConstraint(Sketcher.Constraint("Coincident", 1, 1, 2, 1))
sketch2.addConstraint(Sketcher.Constraint("Coincident", 2, 2, 3, 1))
sketch2.addConstraint(Sketcher.Constraint("Coincident", 3, 2, 4, 1))
sketch2.addConstraint(Sketcher.Constraint("Coincident", 4, 2, 5, 1))
sketch2.addConstraint(Sketcher.Constraint("Coincident", 5, 2, 6, 1))
sketch2.addConstraint(Sketcher.Constraint("Coincident", 6, 2, 0, 2))
sketch2.addConstraint(Sketcher.Constraint("Coincident", 7, 1, 8, 1))
sketch2.addConstraint(Sketcher.Constraint("Coincident", 8, 2, 9, 1))
sketch2.addConstraint(Sketcher.Constraint("Coincident", 9, 2, 10, 1))
sketch2.addConstraint(Sketcher.Constraint("Coincident", 10, 2, 11, 2))
sketch2.addConstraint(Sketcher.Constraint("Coincident", 13, 1, 14, 1))
sketch2.addConstraint(Sketcher.Constraint("Coincident", 14, 2, 15, 1))
sketch2.addConstraint(Sketcher.Constraint("Coincident", 15, 2, 16, 1))
sketch2.addConstraint(Sketcher.Constraint("Coincident", 16, 2, 12, 2))
sketch2.addConstraint(Sketcher.Constraint("Coincident", 17, 1, 18, 1))
sketch2.addConstraint(Sketcher.Constraint("Coincident", 18, 2, 19, 1))
sketch2.addConstraint(Sketcher.Constraint("Coincident", 19, 2, 20, 1))
sketch2.addConstraint(Sketcher.Constraint("Coincident", 20, 2, 21, 2))
sketch2.addConstraint(Sketcher.Constraint("Coincident", 22, 2, 23, 1))
sketch2.addConstraint(Sketcher.Constraint("Coincident", 23, 2, 24, 1))
sketch2.addConstraint(Sketcher.Constraint("Coincident", 24, 2, 25, 1))
sketch2.addConstraint(Sketcher.Constraint("Coincident", 25, 2, 26, 1))
sketch2.addConstraint(Sketcher.Constraint("Coincident", 26, 2, 27, 1))
sketch2.addConstraint(Sketcher.Constraint("Coincident", 27, 2, 28, 1))
sketch2.addConstraint(Sketcher.Constraint("Coincident", 28, 2, 29, 1))
sketch2.addConstraint(Sketcher.Constraint("Coincident", 29, 2, 30, 1))
sketch2.addConstraint(Sketcher.Constraint("Coincident", 30, 2, 31, 1))
sketch2.addConstraint(Sketcher.Constraint("Coincident", 31, 2, 32, 1))
sketch2.addConstraint(Sketcher.Constraint("Coincident", 32, 2, 33, 1))
sketch2.addConstraint(Sketcher.Constraint("Coincident", 33, 2, 22, 1))
sketch2.addConstraint(Sketcher.Constraint("Horizontal", 2))
sketch2.addConstraint(Sketcher.Constraint("Vertical", 3))
sketch2.addConstraint(Sketcher.Constraint("Horizontal", 4))
sketch2.addConstraint(Sketcher.Constraint("Vertical", 5))
sketch2.addConstraint(Sketcher.Constraint("Horizontal", 6))
sketch2.addConstraint(Sketcher.Constraint("Horizontal", 8))
sketch2.addConstraint(Sketcher.Constraint("Vertical", 9))
sketch2.addConstraint(Sketcher.Constraint("Horizontal", 10))
sketch2.addConstraint(Sketcher.Constraint("Horizontal", 14))
sketch2.addConstraint(Sketcher.Constraint("Vertical", 15))
sketch2.addConstraint(Sketcher.Constraint("Horizontal", 16))
sketch2.addConstraint(Sketcher.Constraint("Horizontal", 18))
sketch2.addConstraint(Sketcher.Constraint("Vertical", 19))
sketch2.addConstraint(Sketcher.Constraint("Horizontal", 20))
sketch2.addConstraint(Sketcher.Constraint("Horizontal", 22))
sketch2.addConstraint(Sketcher.Constraint("Vertical", 23))
sketch2.addConstraint(Sketcher.Constraint("Horizontal", 24))
sketch2.addConstraint(Sketcher.Constraint("Vertical", 25))
sketch2.addConstraint(Sketcher.Constraint("Horizontal", 26))
sketch2.addConstraint(Sketcher.Constraint("Vertical", 27))
sketch2.addConstraint(Sketcher.Constraint("Horizontal", 28))
sketch2.addConstraint(Sketcher.Constraint("Vertical", 29))
sketch2.addConstraint(Sketcher.Constraint("Horizontal", 30))
sketch2.addConstraint(Sketcher.Constraint("Vertical", 31))
sketch2.addConstraint(Sketcher.Constraint("Horizontal", 32))
sketch2.addConstraint(Sketcher.Constraint("Vertical", 33))
sketch2.addConstraint(Sketcher.Constraint("DistanceX", 19, 2, 24, 2, 47.569998))
sketch2.addConstraint(Sketcher.Constraint("DistanceX", 6, 1, 6, 2, 4.562209))
sketch2.addConstraint(Sketcher.Constraint("DistanceX", 8, 2, 8, 1, 4.587839))
sketch2.addConstraint(Sketcher.Constraint("DistanceY", 3, 1, 3, 2, 37.72793))
sketch2.addConstraint(Sketcher.Constraint("DistanceY", 23, 2, 23, 1, 37.72793))
sketch2.addConstraint(Sketcher.Constraint("DistanceY", 29, 1, 29, 2, 37.72793))
sketch2.addConstraint(Sketcher.Constraint("DistanceY", 31, 2, 31, 1, 17.497011))
sketch2.addConstraint(Sketcher.Constraint("DistanceY", 33, 1, 33, 2, 17.497011))
sketch2.addConstraint(Sketcher.Constraint("DistanceX", 26, 2, 23, 2, 20.7777))
sketch2.addConstraint(Sketcher.Constraint("DistanceX", 28, 2, 24, 2, 20.7777))
sketch2.addConstraint(Sketcher.Constraint("DistanceX", 30, 2, 22, 2, 20.7777))
sketch2.addConstraint(Sketcher.Constraint("DistanceX", 29, 2, 33, 2, 20.7777))
sketch2.addConstraint(Sketcher.Constraint("DistanceX", 2, 2, 2, 1, 10.551176))
sketch2.addConstraint(Sketcher.Constraint("DistanceX", 14, 2, 14, 1, 9.756634))
sketch2.addConstraint(Sketcher.Constraint("DistanceX", 18, 2, 18, 1, 3.767667))
sketch2.addConstraint(Sketcher.Constraint("DistanceX", 22, 1, 22, 2, 5.467816))
sketch2.addConstraint(Sketcher.Constraint("DistanceY", 25, 1, 25, 2, 15.856666))
sketch2.addConstraint(Sketcher.Constraint("DistanceY", 22, 2, -1, 1, 36.392603))
pocket1 = body.newObject("PartDesign::Pocket", "Pocket")
pocket1.Profile = sketch2
pocket1.Length = 2.54
pocket1.Reversed = True

doc.recompute()
